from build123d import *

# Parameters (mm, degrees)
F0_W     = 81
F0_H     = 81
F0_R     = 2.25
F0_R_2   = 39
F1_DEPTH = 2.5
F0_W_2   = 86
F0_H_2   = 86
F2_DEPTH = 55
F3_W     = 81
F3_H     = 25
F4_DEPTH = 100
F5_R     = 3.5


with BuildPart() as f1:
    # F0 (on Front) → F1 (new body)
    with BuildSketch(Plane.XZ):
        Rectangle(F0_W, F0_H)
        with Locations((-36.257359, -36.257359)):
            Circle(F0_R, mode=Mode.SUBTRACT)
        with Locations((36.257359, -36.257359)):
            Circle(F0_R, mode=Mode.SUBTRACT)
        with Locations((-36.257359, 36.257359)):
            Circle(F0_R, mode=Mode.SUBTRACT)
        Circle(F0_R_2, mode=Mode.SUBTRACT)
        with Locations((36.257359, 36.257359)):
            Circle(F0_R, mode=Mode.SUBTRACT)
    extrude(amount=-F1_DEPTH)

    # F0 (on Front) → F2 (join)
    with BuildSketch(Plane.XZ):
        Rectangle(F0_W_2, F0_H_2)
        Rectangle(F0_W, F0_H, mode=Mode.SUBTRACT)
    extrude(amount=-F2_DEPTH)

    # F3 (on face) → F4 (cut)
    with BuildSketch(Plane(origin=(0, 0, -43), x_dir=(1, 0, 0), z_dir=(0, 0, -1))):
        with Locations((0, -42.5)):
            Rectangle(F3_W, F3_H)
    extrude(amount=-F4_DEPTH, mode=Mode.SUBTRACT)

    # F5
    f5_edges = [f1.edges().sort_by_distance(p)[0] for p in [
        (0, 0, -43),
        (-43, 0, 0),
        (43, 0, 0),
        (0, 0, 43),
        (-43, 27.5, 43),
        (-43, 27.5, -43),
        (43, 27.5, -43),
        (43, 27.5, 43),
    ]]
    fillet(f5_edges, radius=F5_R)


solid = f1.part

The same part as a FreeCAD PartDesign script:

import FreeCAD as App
import Part
import Sketcher
from FreeCAD import Vector
Q = App.Units.Quantity


def edges_at(feature, points):
    """Names of the edges that pass closest to the given points."""
    edges = feature.Shape.Edges
    near = lambda p: min(range(len(edges)), key=lambda i: edges[i].distToShape(Part.Vertex(*p))[0])
    return sorted({f"Edge{near(p) + 1}" for p in points})

doc = App.newDocument("Part")
params = doc.addObject("Spreadsheet::Sheet", "Params")
for row, (alias, value) in enumerate([
    ("sketch1_diameter", "78 mm"),
    ("sketch1_diameter2", "4.5 mm"),
    ("sketch1_width", "81 mm"),
    ("pad1_length", "2.5 mm"),
    ("sketch2_width", "86 mm"),
    ("sketch2_width2", "81 mm"),
    ("pad2_length", "55 mm"),
    ("sketch3_width", "81 mm"),
    ("sketch3_height", "25 mm"),
    ("pocket1_length", "100 mm"),
    ("fillet_radius", "3.5 mm"),
], start=1):
    params.set(f"A{row}", alias)
    params.set(f"B{row}", "=" + value)
    params.setAlias(f"B{row}", alias)

body = doc.addObject("PartDesign::Body", "Body")

# Sketch on XZ plane
sketch1 = body.newObject("Sketcher::SketchObject", "Sketch")
sketch1.AttachmentSupport = (doc.getObject("XZ_Plane"), [""])
sketch1.MapMode = "FlatFace"
sketch1.addGeometry([
    Part.LineSegment(Vector(-40.5, 40.5, 0), Vector(-40.5, -40.5, 0)),  # 0
    Part.LineSegment(Vector(-40.5, -40.5, 0), Vector(40.5, -40.5, 0)),  # 1
    Part.LineSegment(Vector(40.5, -40.5, 0), Vector(40.5, 40.5, 0)),  # 2
    Part.LineSegment(Vector(40.5, 40.5, 0), Vector(-40.5, 40.5, 0)),  # 3
    Part.Circle(Vector(-36.3, -36.3, 0), Vector(0, 0, 1), 2.2),  # 4
    Part.Circle(Vector(36.3, -36.3, 0), Vector(0, 0, 1), 2.2),  # 5
    Part.Circle(Vector(-36.3, 36.3, 0), Vector(0, 0, 1), 2.2),  # 6
    Part.Circle(Vector(0, 0, 0), Vector(0, 0, 1), 39),  # 7
    Part.Circle(Vector(36.3, 36.3, 0), Vector(0, 0, 1), 2.2),  # 8
], False)
sketch1.addConstraint([
    Sketcher.Constraint("Coincident", 0, 2, 1, 1),
    Sketcher.Constraint("Coincident", 1, 2, 2, 1),
    Sketcher.Constraint("Coincident", 2, 2, 3, 1),
    Sketcher.Constraint("Coincident", 3, 2, 0, 1),
    Sketcher.Constraint("Vertical", 0),
    Sketcher.Constraint("Horizontal", 1),
    Sketcher.Constraint("Vertical", 2),
    Sketcher.Constraint("Horizontal", 3),
    Sketcher.Constraint("Coincident", 7, 3, -1, 1),
    Sketcher.Constraint("Equal", 4, 5),
    Sketcher.Constraint("Equal", 5, 6),
    Sketcher.Constraint("Equal", 6, 8),
    Sketcher.Constraint("Symmetric", 5, 3, 6, 3, -1, 1),
    Sketcher.Constraint("Symmetric", 4, 3, 8, 3, -1, 1),
    Sketcher.Constraint("Symmetric", 0, 2, 2, 2, -1, 1),
    Sketcher.Constraint("Symmetric", 4, 3, 5, 3, -2),
    Sketcher.Constraint("Equal", 3, 0),
    Sketcher.Constraint("Diameter", 7, Q("78 mm")),
    Sketcher.Constraint("Diameter", 4, Q("4.5 mm")),
    Sketcher.Constraint("DistanceX", 1, 1, 1, 2, Q("81 mm")),
    Sketcher.Constraint("DistanceX", 4, 3, -1, 1, Q("36.257359 mm")),
    Sketcher.Constraint("DistanceY", 4, 3, -1, 1, Q("36.257359 mm")),
])
sketch1.setExpression("Constraints[17]", "Params.sketch1_diameter")
sketch1.setExpression("Constraints[18]", "Params.sketch1_diameter2")
sketch1.setExpression("Constraints[19]", "Params.sketch1_width")
pad1 = body.newObject("PartDesign::Pad", "Pad")
pad1.Profile = sketch1
pad1.setExpression("Length", "Params.pad1_length")
pad1.Reversed = True

# Sketch on XZ plane
sketch2 = body.newObject("Sketcher::SketchObject", "Sketch001")
sketch2.AttachmentSupport = (doc.getObject("XZ_Plane"), [""])
sketch2.MapMode = "FlatFace"
sketch2.addGeometry([
    Part.LineSegment(Vector(-43, 43, 0), Vector(-43, -43, 0)),  # 0
    Part.LineSegment(Vector(-43, -43, 0), Vector(43, -43, 0)),  # 1
    Part.LineSegment(Vector(43, -43, 0), Vector(43, 43, 0)),  # 2
    Part.LineSegment(Vector(43, 43, 0), Vector(-43, 43, 0)),  # 3
    Part.LineSegment(Vector(40, -40, 0), Vector(-40, -40, 0)),  # 4
    Part.LineSegment(Vector(-40, -40, 0), Vector(-40, 40, 0)),  # 5
    Part.LineSegment(Vector(-40, 40, 0), Vector(40, 40, 0)),  # 6
    Part.LineSegment(Vector(40, 40, 0), Vector(40, -40, 0)),  # 7
], False)
sketch2.addConstraint([
    Sketcher.Constraint("Coincident", 0, 2, 1, 1),
    Sketcher.Constraint("Coincident", 1, 2, 2, 1),
    Sketcher.Constraint("Coincident", 2, 2, 3, 1),
    Sketcher.Constraint("Coincident", 3, 2, 0, 1),
    Sketcher.Constraint("Coincident", 4, 2, 5, 1),
    Sketcher.Constraint("Coincident", 5, 2, 6, 1),
    Sketcher.Constraint("Coincident", 6, 2, 7, 1),
    Sketcher.Constraint("Coincident", 7, 2, 4, 1),
    Sketcher.Constraint("Vertical", 0),
    Sketcher.Constraint("Horizontal", 1),
    Sketcher.Constraint("Vertical", 2),
    Sketcher.Constraint("Horizontal", 3),
    Sketcher.Constraint("Horizontal", 4),
    Sketcher.Constraint("Vertical", 5),
    Sketcher.Constraint("Horizontal", 6),
    Sketcher.Constraint("Vertical", 7),
    Sketcher.Constraint("Symmetric", 0, 2, 2, 2, -1, 1),
    Sketcher.Constraint("Symmetric", 4, 2, 6, 2, -1, 1),
    Sketcher.Constraint("Equal", 3, 0),
    Sketcher.Constraint("Equal", 6, 5),
    Sketcher.Constraint("DistanceX", 1, 1, 1, 2, Q("86 mm")),
    Sketcher.Constraint("DistanceX", 4, 2, 4, 1, Q("81 mm")),
])
sketch2.setExpression("Constraints[20]", "Params.sketch2_width")
sketch2.setExpression("Constraints[21]", "Params.sketch2_width2")
pad2 = body.newObject("PartDesign::Pad", "Pad001")
pad2.Profile = sketch2
pad2.setExpression("Length", "Params.pad2_length")
pad2.Reversed = True

# Sketch on XY plane
sketch3 = body.newObject("Sketcher::SketchObject", "Sketch002")
sketch3.AttachmentSupport = (doc.getObject("XY_Plane"), [""])
sketch3.MapMode = "FlatFace"
sketch3.AttachmentOffset = App.Placement(Vector(0, 0, -43), App.Rotation())
sketch3.addGeometry([
    Part.LineSegment(Vector(-40, 30, 0), Vector(-40, 55, 0)),
    Part.LineSegment(Vector(-40, 55, 0), Vector(40, 55, 0)),
    Part.LineSegment(Vector(40, 55, 0), Vector(40, 30, 0)),
    Part.LineSegment(Vector(40, 30, 0), Vector(-40, 30, 0)),
], False)
sketch3.addConstraint([
    Sketcher.Constraint("Coincident", 0, 2, 1, 1),
    Sketcher.Constraint("Coincident", 1, 2, 2, 1),
    Sketcher.Constraint("Coincident", 2, 2, 3, 1),
    Sketcher.Constraint("Coincident", 3, 2, 0, 1),
    Sketcher.Constraint("Vertical", 0),
    Sketcher.Constraint("Horizontal", 1),
    Sketcher.Constraint("Vertical", 2),
    Sketcher.Constraint("Horizontal", 3),
    Sketcher.Constraint("DistanceX", 1, 1, 1, 2, Q("81 mm")),
    Sketcher.Constraint("DistanceY", 0, 1, 0, 2, Q("25 mm")),
    Sketcher.Constraint("DistanceY", -1, 1, 0, 2, Q("55 mm")),
    Sketcher.Constraint("DistanceX", 0, 2, -1, 1, Q("40.5 mm")),
])
sketch3.setExpression("Constraints[8]", "Params.sketch3_width")
sketch3.setExpression("Constraints[9]", "Params.sketch3_height")
pocket1 = body.newObject("PartDesign::Pocket", "Pocket")
pocket1.Profile = sketch3
pocket1.setExpression("Length", "Params.pocket1_length")
pocket1.Reversed = True
doc.recompute()

fillet = body.newObject("PartDesign::Fillet", "Fillet")
fillet.Base = (pocket1, edges_at(pocket1, [
    (0, 0, -43),
    (-43, 0, 0),
    (43, 0, 0),
    (0, 0, 43),
    (-43, 27.5, 43),
    (-43, 27.5, -43),
    (43, 27.5, -43),
    (43, 27.5, 43),
]))
fillet.setExpression("Radius", "Params.fillet_radius")

doc.recompute()
